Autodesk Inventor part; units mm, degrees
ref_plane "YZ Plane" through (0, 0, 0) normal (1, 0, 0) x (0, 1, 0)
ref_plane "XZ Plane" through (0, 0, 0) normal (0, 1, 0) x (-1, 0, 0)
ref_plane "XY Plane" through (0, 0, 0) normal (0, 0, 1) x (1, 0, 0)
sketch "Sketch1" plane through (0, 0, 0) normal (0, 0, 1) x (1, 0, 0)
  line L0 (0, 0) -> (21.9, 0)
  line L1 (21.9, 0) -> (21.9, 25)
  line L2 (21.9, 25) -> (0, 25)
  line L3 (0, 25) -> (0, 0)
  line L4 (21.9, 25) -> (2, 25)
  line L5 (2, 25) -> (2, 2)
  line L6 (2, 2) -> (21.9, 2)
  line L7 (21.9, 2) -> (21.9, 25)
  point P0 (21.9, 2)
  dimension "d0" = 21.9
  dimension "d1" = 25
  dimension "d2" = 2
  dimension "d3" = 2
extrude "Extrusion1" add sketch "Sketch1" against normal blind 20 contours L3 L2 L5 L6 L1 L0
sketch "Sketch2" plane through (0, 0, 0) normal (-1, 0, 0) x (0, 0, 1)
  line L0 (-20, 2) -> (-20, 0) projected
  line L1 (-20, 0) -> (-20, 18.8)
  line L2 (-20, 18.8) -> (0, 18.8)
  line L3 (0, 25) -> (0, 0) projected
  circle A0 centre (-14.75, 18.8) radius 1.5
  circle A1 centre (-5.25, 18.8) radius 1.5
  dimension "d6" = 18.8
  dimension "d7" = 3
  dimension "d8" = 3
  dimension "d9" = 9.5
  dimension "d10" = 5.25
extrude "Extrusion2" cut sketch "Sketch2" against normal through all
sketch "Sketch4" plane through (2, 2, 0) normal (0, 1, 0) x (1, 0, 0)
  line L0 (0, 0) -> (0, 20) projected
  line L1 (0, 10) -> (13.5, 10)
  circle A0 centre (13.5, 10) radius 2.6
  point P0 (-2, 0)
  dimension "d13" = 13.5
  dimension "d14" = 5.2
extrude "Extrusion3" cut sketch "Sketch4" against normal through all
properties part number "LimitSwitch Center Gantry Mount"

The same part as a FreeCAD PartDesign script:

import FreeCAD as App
import Part
import Sketcher
Q = App.Units.Quantity


def add_polygon(sketch, points):
    """Adds a closed chain of lines whose ends are joined by coincident constraints."""
    first, n = sketch.GeometryCount, len(points)
    for a, b in zip(points, points[1:] + points[:1]):
        sketch.addGeometry(Part.LineSegment(App.Vector(*a, 0), App.Vector(*b, 0)), False)
    for i in range(n):
        sketch.addConstraint(Sketcher.Constraint("Coincident", first + i, 2, first + (i + 1) % n, 1))

doc = App.newDocument("Part")
body = doc.addObject("PartDesign::Body", "Body")

sketch1 = body.newObject("Sketcher::SketchObject", "Sketch")
sketch1.AttachmentSupport = (doc.getObject("XY_Plane"), [""])
sketch1.MapMode = "FlatFace"
add_polygon(sketch1, [(0, 25), (0, 0), (21.9, 0), (21.9, 2), (2, 2), (2, 25)])
sketch1.addConstraint(Sketcher.Constraint("Vertical", 0))
sketch1.addConstraint(Sketcher.Constraint("Horizontal", 1))
sketch1.addConstraint(Sketcher.Constraint("Vertical", 2))
sketch1.addConstraint(Sketcher.Constraint("Horizontal", 3))
sketch1.addConstraint(Sketcher.Constraint("Vertical", 4))
sketch1.addConstraint(Sketcher.Constraint("Horizontal", 5))
sketch1.addConstraint(Sketcher.Constraint("Coincident", 0, 2, -1, 1))
sketch1.addConstraint(Sketcher.Constraint("Equal", 5, 2))
sketch1.addConstraint(Sketcher.Constraint("DistanceX", 5, 2, 5, 1, Q("2 mm")))
sketch1.addConstraint(Sketcher.Constraint("DistanceY", 0, 2, 0, 1, Q("25 mm")))
sketch1.addConstraint(Sketcher.Constraint("DistanceX", 1, 1, 1, 2, Q("21.9 mm")))
pad1 = body.newObject("PartDesign::Pad", "Pad")
pad1.Profile = sketch1
pad1.Length = 20
pad1.Reversed = True

sketch2 = body.newObject("Sketcher::SketchObject", "Sketch001")
sketch2.AttachmentSupport = (doc.getObject("YZ_Plane"), [""])
sketch2.MapMode = "FlatFace"
sketch2.addGeometry(Part.Circle(App.Vector(18.8, -14.8, 0), App.Vector(0, 0, 1), 1.5), False)
sketch2.addGeometry(Part.Circle(App.Vector(18.8, -5.2, 0), App.Vector(0, 0, 1), 1.5), False)
sketch2.addConstraint(Sketcher.Constraint("Equal", 0, 1))
sketch2.addConstraint(Sketcher.Constraint("Vertical", 0, 3, 1, 3))
sketch2.addConstraint(Sketcher.Constraint("Diameter", 0, Q("3 mm")))
sketch2.addConstraint(Sketcher.Constraint("DistanceX", -1, 1, 0, 3, Q("18.8 mm")))
sketch2.addConstraint(Sketcher.Constraint("DistanceY", 0, 3, 1, 3, Q("9.5 mm")))
sketch2.addConstraint(Sketcher.Constraint("DistanceY", 1, 3, -1, 1, Q("5.25 mm")))
pocket1 = body.newObject("PartDesign::Pocket", "Pocket")
pocket1.Profile = sketch2
pocket1.Type = "ThroughAll"
pocket1.Reversed = True

sketch3 = body.newObject("Sketcher::SketchObject", "Sketch002")
sketch3.AttachmentSupport = (doc.getObject("XZ_Plane"), [""])
sketch3.MapMode = "FlatFace"
sketch3.AttachmentOffset = App.Placement(App.Vector(0, 0, -2), App.Rotation())
sketch3.addGeometry(Part.Circle(App.Vector(15.5, -10, 0), App.Vector(0, 0, 1), 2.6), False)
sketch3.addConstraint(Sketcher.Constraint("Diameter", 0, Q("5.2 mm")))
sketch3.addConstraint(Sketcher.Constraint("DistanceY", 0, 3, -1, 1, Q("10 mm")))
sketch3.addConstraint(Sketcher.Constraint("DistanceX", -1, 1, 0, 3, Q("15.5 mm")))
pocket2 = body.newObject("PartDesign::Pocket", "Pocket001")
pocket2.Profile = sketch3
pocket2.Type = "ThroughAll"
pocket2.Reversed = True

doc.recompute()
